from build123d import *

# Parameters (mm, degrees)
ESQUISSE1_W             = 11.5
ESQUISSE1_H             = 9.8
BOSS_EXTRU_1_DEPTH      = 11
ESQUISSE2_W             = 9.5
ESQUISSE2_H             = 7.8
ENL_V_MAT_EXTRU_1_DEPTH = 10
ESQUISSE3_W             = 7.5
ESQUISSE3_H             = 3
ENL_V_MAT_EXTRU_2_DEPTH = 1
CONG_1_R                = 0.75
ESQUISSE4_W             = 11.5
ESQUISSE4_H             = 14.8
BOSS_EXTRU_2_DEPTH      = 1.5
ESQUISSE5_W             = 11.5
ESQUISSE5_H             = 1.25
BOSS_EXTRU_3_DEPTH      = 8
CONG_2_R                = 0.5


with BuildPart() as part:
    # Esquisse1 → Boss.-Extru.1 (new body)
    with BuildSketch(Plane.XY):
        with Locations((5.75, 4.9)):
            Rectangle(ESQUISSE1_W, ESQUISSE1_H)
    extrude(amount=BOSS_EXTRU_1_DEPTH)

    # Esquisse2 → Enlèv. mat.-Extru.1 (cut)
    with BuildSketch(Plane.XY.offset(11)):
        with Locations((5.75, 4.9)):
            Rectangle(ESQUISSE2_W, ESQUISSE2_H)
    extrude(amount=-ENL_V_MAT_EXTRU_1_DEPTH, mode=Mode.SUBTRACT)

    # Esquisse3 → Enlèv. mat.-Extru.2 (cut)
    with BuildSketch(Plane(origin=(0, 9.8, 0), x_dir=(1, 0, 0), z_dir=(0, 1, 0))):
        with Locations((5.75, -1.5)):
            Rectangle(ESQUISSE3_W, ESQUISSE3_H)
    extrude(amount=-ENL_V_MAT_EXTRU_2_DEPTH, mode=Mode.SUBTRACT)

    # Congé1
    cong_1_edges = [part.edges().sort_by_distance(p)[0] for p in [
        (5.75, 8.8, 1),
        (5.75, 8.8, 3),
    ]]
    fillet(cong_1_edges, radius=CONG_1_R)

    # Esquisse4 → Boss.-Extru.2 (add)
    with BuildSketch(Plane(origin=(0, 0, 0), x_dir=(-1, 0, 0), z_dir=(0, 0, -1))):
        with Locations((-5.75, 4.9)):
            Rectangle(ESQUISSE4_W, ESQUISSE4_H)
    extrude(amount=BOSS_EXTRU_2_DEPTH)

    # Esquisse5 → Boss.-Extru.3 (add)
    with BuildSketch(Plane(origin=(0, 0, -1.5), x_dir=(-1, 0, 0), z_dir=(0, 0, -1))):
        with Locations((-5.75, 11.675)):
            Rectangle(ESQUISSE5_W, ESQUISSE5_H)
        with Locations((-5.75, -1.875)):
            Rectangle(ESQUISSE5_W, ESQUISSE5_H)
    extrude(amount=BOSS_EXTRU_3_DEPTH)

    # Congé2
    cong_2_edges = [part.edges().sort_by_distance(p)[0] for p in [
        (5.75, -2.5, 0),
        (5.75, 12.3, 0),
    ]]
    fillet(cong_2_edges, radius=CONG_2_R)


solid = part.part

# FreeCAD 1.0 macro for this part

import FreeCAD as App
import Part
import Sketcher
Q = App.Units.Quantity


def edges_at(feature, points):
    """Names of the edges that pass closest to the given points."""
    edges = feature.Shape.Edges
    near = lambda p: min(range(len(edges)), key=lambda i: edges[i].distToShape(Part.Vertex(*p))[0])
    return sorted({f"Edge{near(p) + 1}" for p in points})

doc = App.newDocument("Part")
body = doc.addObject("PartDesign::Body", "Body")

# Sketch on XY plane
sketch1 = doc.addObject("Sketcher::SketchObject", "Sketch")
body.addObject(sketch1)
sketch1.AttachmentSupport = (doc.XY_Plane, [""])
sketch1.MapMode = "FlatFace"
sketch1.addGeometry(Part.LineSegment(App.Vector(0, 10, 0), App.Vector(0, 0, 0)), False)
sketch1.addGeometry(Part.LineSegment(App.Vector(0, 0, 0), App.Vector(12, 0, 0)), False)
sketch1.addGeometry(Part.LineSegment(App.Vector(12, 0, 0), App.Vector(12, 10, 0)), False)
sketch1.addGeometry(Part.LineSegment(App.Vector(12, 10, 0), App.Vector(0, 10, 0)), False)
sketch1.addConstraint(Sketcher.Constraint("Coincident", 0, 2, 1, 1))
sketch1.addConstraint(Sketcher.Constraint("Coincident", 1, 2, 2, 1))
sketch1.addConstraint(Sketcher.Constraint("Coincident", 2, 2, 3, 1))
sketch1.addConstraint(Sketcher.Constraint("Coincident", 3, 2, 0, 1))
sketch1.addConstraint(Sketcher.Constraint("Vertical", 0))
sketch1.addConstraint(Sketcher.Constraint("Horizontal", 1))
sketch1.addConstraint(Sketcher.Constraint("Vertical", 2))
sketch1.addConstraint(Sketcher.Constraint("Horizontal", 3))
sketch1.addConstraint(Sketcher.Constraint("Coincident", 0, 2, -1, 1))
sketch1.addConstraint(Sketcher.Constraint("DistanceX", 1, 1, 1, 2, Q("11.5 mm")))
sketch1.addConstraint(Sketcher.Constraint("DistanceY", 0, 2, 0, 1, Q("9.8 mm")))
pad1 = doc.addObject("PartDesign::Pad", "Pad")
body.addObject(pad1)
pad1.Profile = sketch1
pad1.Length = 11

# Sketch on XY plane
sketch2 = doc.addObject("Sketcher::SketchObject", "Sketch001")
body.addObject(sketch2)
sketch2.AttachmentSupport = (doc.XY_Plane, [""])
sketch2.MapMode = "FlatFace"
sketch2.AttachmentOffset = App.Placement(App.Vector(0, 0, 11), App.Rotation())
sketch2.addGeometry(Part.LineSegment(App.Vector(1, 9, 0), App.Vector(1, 1, 0)), False)
sketch2.addGeometry(Part.LineSegment(App.Vector(1, 1, 0), App.Vector(10, 1, 0)), False)
sketch2.addGeometry(Part.LineSegment(App.Vector(10, 1, 0), App.Vector(10, 9, 0)), False)
sketch2.addGeometry(Part.LineSegment(App.Vector(10, 9, 0), App.Vector(1, 9, 0)), False)
sketch2.addConstraint(Sketcher.Constraint("Coincident", 0, 2, 1, 1))
sketch2.addConstraint(Sketcher.Constraint("Coincident", 1, 2, 2, 1))
sketch2.addConstraint(Sketcher.Constraint("Coincident", 2, 2, 3, 1))
sketch2.addConstraint(Sketcher.Constraint("Coincident", 3, 2, 0, 1))
sketch2.addConstraint(Sketcher.Constraint("Vertical", 0))
sketch2.addConstraint(Sketcher.Constraint("Horizontal", 1))
sketch2.addConstraint(Sketcher.Constraint("Vertical", 2))
sketch2.addConstraint(Sketcher.Constraint("Horizontal", 3))
sketch2.addConstraint(Sketcher.Constraint("DistanceX", 1, 1, 1, 2, Q("9.5 mm")))
sketch2.addConstraint(Sketcher.Constraint("DistanceY", 0, 2, 0, 1, Q("7.8 mm")))
sketch2.addConstraint(Sketcher.Constraint("DistanceX", -1, 1, 0, 2, Q("1 mm")))
sketch2.addConstraint(Sketcher.Constraint("DistanceY", -1, 1, 0, 2, Q("1 mm")))
pocket1 = doc.addObject("PartDesign::Pocket", "Pocket")
body.addObject(pocket1)
pocket1.Profile = sketch2
pocket1.Length = 10

# Sketch on XZ plane
sketch3 = doc.addObject("Sketcher::SketchObject", "Sketch002")
body.addObject(sketch3)
sketch3.AttachmentSupport = (doc.XZ_Plane, [""])
sketch3.MapMode = "FlatFace"
sketch3.AttachmentOffset = App.Placement(App.Vector(0, 0, -9.8), App.Rotation())
sketch3.addGeometry(Part.LineSegment(App.Vector(2, 0, 0), App.Vector(2, 3, 0)), False)
sketch3.addGeometry(Part.LineSegment(App.Vector(2, 3, 0), App.Vector(9.5, 3, 0)), False)
sketch3.addGeometry(Part.LineSegment(App.Vector(9.5, 3, 0), App.Vector(9.5, 0, 0)), False)
sketch3.addGeometry(Part.LineSegment(App.Vector(9.5, 0, 0), App.Vector(2, 0, 0)), False)
sketch3.addConstraint(Sketcher.Constraint("Coincident", 0, 2, 1, 1))
sketch3.addConstraint(Sketcher.Constraint("Coincident", 1, 2, 2, 1))
sketch3.addConstraint(Sketcher.Constraint("Coincident", 2, 2, 3, 1))
sketch3.addConstraint(Sketcher.Constraint("Coincident", 3, 2, 0, 1))
sketch3.addConstraint(Sketcher.Constraint("Vertical", 0))
sketch3.addConstraint(Sketcher.Constraint("Horizontal", 1))
sketch3.addConstraint(Sketcher.Constraint("Vertical", 2))
sketch3.addConstraint(Sketcher.Constraint("Horizontal", 3))
sketch3.addConstraint(Sketcher.Constraint("PointOnObject", 2, 2, -1))
sketch3.addConstraint(Sketcher.Constraint("DistanceY", 0, 1, 0, 2, Q("3 mm")))
sketch3.addConstraint(Sketcher.Constraint("DistanceX", 1, 1, 1, 2, Q("7.5 mm")))
sketch3.addConstraint(Sketcher.Constraint("DistanceX", -1, 1, 0, 2, Q("2 mm")))
pocket2 = doc.addObject("PartDesign::Pocket", "Pocket001")
body.addObject(pocket2)
pocket2.Profile = sketch3
pocket2.Length = 1
pocket2.Reversed = True
doc.recompute()

fillet = doc.addObject("PartDesign::Fillet", "Fillet")
body.addObject(fillet)
fillet.Base = (pocket2, edges_at(pocket2, [(5.75, 8.8, 1), (5.75, 8.8, 3)]))
fillet.Radius = 0.75

# Sketch on XY plane
sketch4 = doc.addObject("Sketcher::SketchObject", "Sketch003")
body.addObject(sketch4)
sketch4.AttachmentSupport = (doc.XY_Plane, [""])
sketch4.MapMode = "FlatFace"
sketch4.addGeometry(Part.LineSegment(App.Vector(12, 12, 0), App.Vector(12, -2, 0)), False)
sketch4.addGeometry(Part.LineSegment(App.Vector(12, -2, 0), App.Vector(0, -2, 0)), False)
sketch4.addGeometry(Part.LineSegment(App.Vector(0, -2, 0), App.Vector(0, 12, 0)), False)
sketch4.addGeometry(Part.LineSegment(App.Vector(0, 12, 0), App.Vector(12, 12, 0)), False)
sketch4.addConstraint(Sketcher.Constraint("Coincident", 0, 2, 1, 1))
sketch4.addConstraint(Sketcher.Constraint("Coincident", 1, 2, 2, 1))
sketch4.addConstraint(Sketcher.Constraint("Coincident", 2, 2, 3, 1))
sketch4.addConstraint(Sketcher.Constraint("Coincident", 3, 2, 0, 1))
sketch4.addConstraint(Sketcher.Constraint("Vertical", 0))
sketch4.addConstraint(Sketcher.Constraint("Horizontal", 1))
sketch4.addConstraint(Sketcher.Constraint("Vertical", 2))
sketch4.addConstraint(Sketcher.Constraint("Horizontal", 3))
sketch4.addConstraint(Sketcher.Constraint("PointOnObject", 1, 2, -2))
sketch4.addConstraint(Sketcher.Constraint("DistanceX", 1, 2, 1, 1, Q("11.5 mm")))
sketch4.addConstraint(Sketcher.Constraint("DistanceY", 0, 2, 0, 1, Q("14.8 mm")))
sketch4.addConstraint(Sketcher.Constraint("DistanceY", 0, 2, -1, 1, Q("2.5 mm")))
pad2 = doc.addObject("PartDesign::Pad", "Pad001")
body.addObject(pad2)
pad2.Profile = sketch4
pad2.Length = 1.5
pad2.Reversed = True

# Sketch on XY plane
sketch5 = doc.addObject("Sketcher::SketchObject", "Sketch004")
body.addObject(sketch5)
sketch5.AttachmentSupport = (doc.XY_Plane, [""])
sketch5.MapMode = "FlatFace"
sketch5.AttachmentOffset = App.Placement(App.Vector(0, 0, -1.5), App.Rotation())
sketch5.addGeometry(Part.LineSegment(App.Vector(11.5, 12.3, 0), App.Vector(11.5, 11.1, 0)), False)
sketch5.addGeometry(Part.LineSegment(App.Vector(11.5, 11.1, 0), App.Vector(0, 11.1, 0)), False)
sketch5.addGeometry(Part.LineSegment(App.Vector(0, 11.1, 0), App.Vector(0, 12.3, 0)), False)
sketch5.addGeometry(Part.LineSegment(App.Vector(0, 12.3, 0), App.Vector(11.5, 12.3, 0)), False)
sketch5.addGeometry(Part.LineSegment(App.Vector(11.5, -1.2, 0), App.Vector(11.5, -2.5, 0)), False)
sketch5.addGeometry(Part.LineSegment(App.Vector(11.5, -2.5, 0), App.Vector(0, -2.5, 0)), False)
sketch5.addGeometry(Part.LineSegment(App.Vector(0, -2.5, 0), App.Vector(0, -1.2, 0)), False)
sketch5.addGeometry(Part.LineSegment(App.Vector(0, -1.2, 0), App.Vector(11.5, -1.2, 0)), False)
sketch5.addConstraint(Sketcher.Constraint("Coincident", 0, 2, 1, 1))
sketch5.addConstraint(Sketcher.Constraint("Coincident", 1, 2, 2, 1))
sketch5.addConstraint(Sketcher.Constraint("Coincident", 2, 2, 3, 1))
sketch5.addConstraint(Sketcher.Constraint("Coincident", 3, 2, 0, 1))
sketch5.addConstraint(Sketcher.Constraint("Coincident", 4, 2, 5, 1))
sketch5.addConstraint(Sketcher.Constraint("Coincident", 5, 2, 6, 1))
sketch5.addConstraint(Sketcher.Constraint("Coincident", 6, 2, 7, 1))
sketch5.addConstraint(Sketcher.Constraint("Coincident", 7, 2, 4, 1))
sketch5.addConstraint(Sketcher.Constraint("Vertical", 0))
sketch5.addConstraint(Sketcher.Constraint("Horizontal", 1))
sketch5.addConstraint(Sketcher.Constraint("Vertical", 2))
sketch5.addConstraint(Sketcher.Constraint("Horizontal", 3))
sketch5.addConstraint(Sketcher.Constraint("Vertical", 4))
sketch5.addConstraint(Sketcher.Constraint("Horizontal", 5))
sketch5.addConstraint(Sketcher.Constraint("Vertical", 6))
sketch5.addConstraint(Sketcher.Constraint("Horizontal", 7))
sketch5.addConstraint(Sketcher.Constraint("PointOnObject", 1, 2, -2))
sketch5.addConstraint(Sketcher.Constraint("PointOnObject", 5, 2, -2))
sketch5.addConstraint(Sketcher.Constraint("Vertical", 3, 2, 4, 2))
sketch5.addConstraint(Sketcher.Constraint("Equal", 2, 4))
sketch5.addConstraint(Sketcher.Constraint("DistanceX", 1, 2, 1, 1, Q("11.5 mm")))
sketch5.addConstraint(Sketcher.Constraint("DistanceY", 0, 2, 0, 1, Q("1.25 mm")))
sketch5.addConstraint(Sketcher.Constraint("DistanceY", -1, 1, 2, 2, Q("12.3 mm")))
sketch5.addConstraint(Sketcher.Constraint("DistanceY", 4, 2, -1, 1, Q("2.5 mm")))
pad3 = doc.addObject("PartDesign::Pad", "Pad002")
body.addObject(pad3)
pad3.Profile = sketch5
pad3.Length = 8
pad3.Reversed = True
doc.recompute()

fillet2 = doc.addObject("PartDesign::Fillet", "Fillet001")
body.addObject(fillet2)
fillet2.Base = (pad3, edges_at(pad3, [(5.75, -2.5, 0), (5.75, 12.3, 0)]))
fillet2.Radius = 0.5

doc.recompute()
